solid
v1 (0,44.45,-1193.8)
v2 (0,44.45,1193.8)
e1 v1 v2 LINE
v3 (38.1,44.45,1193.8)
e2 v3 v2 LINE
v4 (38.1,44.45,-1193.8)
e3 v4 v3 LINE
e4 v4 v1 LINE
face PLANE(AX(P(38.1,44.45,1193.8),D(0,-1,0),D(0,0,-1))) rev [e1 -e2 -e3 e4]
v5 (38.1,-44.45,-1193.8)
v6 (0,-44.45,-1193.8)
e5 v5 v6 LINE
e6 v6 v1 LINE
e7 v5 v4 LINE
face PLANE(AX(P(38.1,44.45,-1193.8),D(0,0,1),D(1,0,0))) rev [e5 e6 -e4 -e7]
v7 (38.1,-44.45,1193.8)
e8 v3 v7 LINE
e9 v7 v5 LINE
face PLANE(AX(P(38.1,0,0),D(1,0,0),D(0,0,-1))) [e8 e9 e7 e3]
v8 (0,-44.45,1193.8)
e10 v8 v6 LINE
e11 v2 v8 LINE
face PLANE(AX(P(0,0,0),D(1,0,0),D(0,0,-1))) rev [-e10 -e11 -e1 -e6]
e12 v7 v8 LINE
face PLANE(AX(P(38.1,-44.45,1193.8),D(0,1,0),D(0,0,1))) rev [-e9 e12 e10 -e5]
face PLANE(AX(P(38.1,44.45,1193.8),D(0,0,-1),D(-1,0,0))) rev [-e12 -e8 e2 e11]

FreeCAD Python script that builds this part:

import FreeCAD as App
import Part
import Sketcher
Q = App.Units.Quantity


def add_polygon(sketch, points):
    """Adds a closed chain of lines whose ends are joined by coincident constraints."""
    first, n = sketch.GeometryCount, len(points)
    for a, b in zip(points, points[1:] + points[:1]):
        sketch.addGeometry(Part.LineSegment(App.Vector(*a, 0), App.Vector(*b, 0)), False)
    for i in range(n):
        sketch.addConstraint(Sketcher.Constraint("Coincident", first + i, 2, first + (i + 1) % n, 1))

doc = App.newDocument("Part")
params = doc.addObject("Spreadsheet::Sheet", "Params")
for row, (alias, value) in enumerate([
    ("sketch1_height", "94 in"),
    ("sketch1_width", "3.5 in"),
    ("pad1_length", "1.5 in"),
], start=1):
    params.set(f"A{row}", alias)
    params.set(f"B{row}", "=" + value)
    params.setAlias(f"B{row}", alias)

body = doc.addObject("PartDesign::Body", "Body")

# Sketch on YZ plane
sketch1 = doc.addObject("Sketcher::SketchObject", "Sketch")
body.addObject(sketch1)
sketch1.AttachmentSupport = (doc.YZ_Plane, [""])
sketch1.MapMode = "FlatFace"
add_polygon(sketch1, [(44, 1194), (-44, 1194), (-44, -1194), (44, -1194)])  # lines 0-3
sketch1.addConstraint([
    Sketcher.Constraint("Horizontal", 0),
    Sketcher.Constraint("Vertical", 1),
    Sketcher.Constraint("Horizontal", 2),
    Sketcher.Constraint("Vertical", 3),
    Sketcher.Constraint("Symmetric", 0, 2, 2, 2, -1, 1),
    Sketcher.Constraint("DistanceY", 1, 2, 1, 1, Q("94 in")),
    Sketcher.Constraint("DistanceX", 0, 2, 0, 1, Q("3.5 in")),
])
sketch1.setExpression("Constraints[9]", "Params.sketch1_height")
sketch1.setExpression("Constraints[10]", "Params.sketch1_width")
pad1 = doc.addObject("PartDesign::Pad", "Pad")
body.addObject(pad1)
pad1.Profile = sketch1
pad1.setExpression("Length", "Params.pad1_length")

doc.recompute()
